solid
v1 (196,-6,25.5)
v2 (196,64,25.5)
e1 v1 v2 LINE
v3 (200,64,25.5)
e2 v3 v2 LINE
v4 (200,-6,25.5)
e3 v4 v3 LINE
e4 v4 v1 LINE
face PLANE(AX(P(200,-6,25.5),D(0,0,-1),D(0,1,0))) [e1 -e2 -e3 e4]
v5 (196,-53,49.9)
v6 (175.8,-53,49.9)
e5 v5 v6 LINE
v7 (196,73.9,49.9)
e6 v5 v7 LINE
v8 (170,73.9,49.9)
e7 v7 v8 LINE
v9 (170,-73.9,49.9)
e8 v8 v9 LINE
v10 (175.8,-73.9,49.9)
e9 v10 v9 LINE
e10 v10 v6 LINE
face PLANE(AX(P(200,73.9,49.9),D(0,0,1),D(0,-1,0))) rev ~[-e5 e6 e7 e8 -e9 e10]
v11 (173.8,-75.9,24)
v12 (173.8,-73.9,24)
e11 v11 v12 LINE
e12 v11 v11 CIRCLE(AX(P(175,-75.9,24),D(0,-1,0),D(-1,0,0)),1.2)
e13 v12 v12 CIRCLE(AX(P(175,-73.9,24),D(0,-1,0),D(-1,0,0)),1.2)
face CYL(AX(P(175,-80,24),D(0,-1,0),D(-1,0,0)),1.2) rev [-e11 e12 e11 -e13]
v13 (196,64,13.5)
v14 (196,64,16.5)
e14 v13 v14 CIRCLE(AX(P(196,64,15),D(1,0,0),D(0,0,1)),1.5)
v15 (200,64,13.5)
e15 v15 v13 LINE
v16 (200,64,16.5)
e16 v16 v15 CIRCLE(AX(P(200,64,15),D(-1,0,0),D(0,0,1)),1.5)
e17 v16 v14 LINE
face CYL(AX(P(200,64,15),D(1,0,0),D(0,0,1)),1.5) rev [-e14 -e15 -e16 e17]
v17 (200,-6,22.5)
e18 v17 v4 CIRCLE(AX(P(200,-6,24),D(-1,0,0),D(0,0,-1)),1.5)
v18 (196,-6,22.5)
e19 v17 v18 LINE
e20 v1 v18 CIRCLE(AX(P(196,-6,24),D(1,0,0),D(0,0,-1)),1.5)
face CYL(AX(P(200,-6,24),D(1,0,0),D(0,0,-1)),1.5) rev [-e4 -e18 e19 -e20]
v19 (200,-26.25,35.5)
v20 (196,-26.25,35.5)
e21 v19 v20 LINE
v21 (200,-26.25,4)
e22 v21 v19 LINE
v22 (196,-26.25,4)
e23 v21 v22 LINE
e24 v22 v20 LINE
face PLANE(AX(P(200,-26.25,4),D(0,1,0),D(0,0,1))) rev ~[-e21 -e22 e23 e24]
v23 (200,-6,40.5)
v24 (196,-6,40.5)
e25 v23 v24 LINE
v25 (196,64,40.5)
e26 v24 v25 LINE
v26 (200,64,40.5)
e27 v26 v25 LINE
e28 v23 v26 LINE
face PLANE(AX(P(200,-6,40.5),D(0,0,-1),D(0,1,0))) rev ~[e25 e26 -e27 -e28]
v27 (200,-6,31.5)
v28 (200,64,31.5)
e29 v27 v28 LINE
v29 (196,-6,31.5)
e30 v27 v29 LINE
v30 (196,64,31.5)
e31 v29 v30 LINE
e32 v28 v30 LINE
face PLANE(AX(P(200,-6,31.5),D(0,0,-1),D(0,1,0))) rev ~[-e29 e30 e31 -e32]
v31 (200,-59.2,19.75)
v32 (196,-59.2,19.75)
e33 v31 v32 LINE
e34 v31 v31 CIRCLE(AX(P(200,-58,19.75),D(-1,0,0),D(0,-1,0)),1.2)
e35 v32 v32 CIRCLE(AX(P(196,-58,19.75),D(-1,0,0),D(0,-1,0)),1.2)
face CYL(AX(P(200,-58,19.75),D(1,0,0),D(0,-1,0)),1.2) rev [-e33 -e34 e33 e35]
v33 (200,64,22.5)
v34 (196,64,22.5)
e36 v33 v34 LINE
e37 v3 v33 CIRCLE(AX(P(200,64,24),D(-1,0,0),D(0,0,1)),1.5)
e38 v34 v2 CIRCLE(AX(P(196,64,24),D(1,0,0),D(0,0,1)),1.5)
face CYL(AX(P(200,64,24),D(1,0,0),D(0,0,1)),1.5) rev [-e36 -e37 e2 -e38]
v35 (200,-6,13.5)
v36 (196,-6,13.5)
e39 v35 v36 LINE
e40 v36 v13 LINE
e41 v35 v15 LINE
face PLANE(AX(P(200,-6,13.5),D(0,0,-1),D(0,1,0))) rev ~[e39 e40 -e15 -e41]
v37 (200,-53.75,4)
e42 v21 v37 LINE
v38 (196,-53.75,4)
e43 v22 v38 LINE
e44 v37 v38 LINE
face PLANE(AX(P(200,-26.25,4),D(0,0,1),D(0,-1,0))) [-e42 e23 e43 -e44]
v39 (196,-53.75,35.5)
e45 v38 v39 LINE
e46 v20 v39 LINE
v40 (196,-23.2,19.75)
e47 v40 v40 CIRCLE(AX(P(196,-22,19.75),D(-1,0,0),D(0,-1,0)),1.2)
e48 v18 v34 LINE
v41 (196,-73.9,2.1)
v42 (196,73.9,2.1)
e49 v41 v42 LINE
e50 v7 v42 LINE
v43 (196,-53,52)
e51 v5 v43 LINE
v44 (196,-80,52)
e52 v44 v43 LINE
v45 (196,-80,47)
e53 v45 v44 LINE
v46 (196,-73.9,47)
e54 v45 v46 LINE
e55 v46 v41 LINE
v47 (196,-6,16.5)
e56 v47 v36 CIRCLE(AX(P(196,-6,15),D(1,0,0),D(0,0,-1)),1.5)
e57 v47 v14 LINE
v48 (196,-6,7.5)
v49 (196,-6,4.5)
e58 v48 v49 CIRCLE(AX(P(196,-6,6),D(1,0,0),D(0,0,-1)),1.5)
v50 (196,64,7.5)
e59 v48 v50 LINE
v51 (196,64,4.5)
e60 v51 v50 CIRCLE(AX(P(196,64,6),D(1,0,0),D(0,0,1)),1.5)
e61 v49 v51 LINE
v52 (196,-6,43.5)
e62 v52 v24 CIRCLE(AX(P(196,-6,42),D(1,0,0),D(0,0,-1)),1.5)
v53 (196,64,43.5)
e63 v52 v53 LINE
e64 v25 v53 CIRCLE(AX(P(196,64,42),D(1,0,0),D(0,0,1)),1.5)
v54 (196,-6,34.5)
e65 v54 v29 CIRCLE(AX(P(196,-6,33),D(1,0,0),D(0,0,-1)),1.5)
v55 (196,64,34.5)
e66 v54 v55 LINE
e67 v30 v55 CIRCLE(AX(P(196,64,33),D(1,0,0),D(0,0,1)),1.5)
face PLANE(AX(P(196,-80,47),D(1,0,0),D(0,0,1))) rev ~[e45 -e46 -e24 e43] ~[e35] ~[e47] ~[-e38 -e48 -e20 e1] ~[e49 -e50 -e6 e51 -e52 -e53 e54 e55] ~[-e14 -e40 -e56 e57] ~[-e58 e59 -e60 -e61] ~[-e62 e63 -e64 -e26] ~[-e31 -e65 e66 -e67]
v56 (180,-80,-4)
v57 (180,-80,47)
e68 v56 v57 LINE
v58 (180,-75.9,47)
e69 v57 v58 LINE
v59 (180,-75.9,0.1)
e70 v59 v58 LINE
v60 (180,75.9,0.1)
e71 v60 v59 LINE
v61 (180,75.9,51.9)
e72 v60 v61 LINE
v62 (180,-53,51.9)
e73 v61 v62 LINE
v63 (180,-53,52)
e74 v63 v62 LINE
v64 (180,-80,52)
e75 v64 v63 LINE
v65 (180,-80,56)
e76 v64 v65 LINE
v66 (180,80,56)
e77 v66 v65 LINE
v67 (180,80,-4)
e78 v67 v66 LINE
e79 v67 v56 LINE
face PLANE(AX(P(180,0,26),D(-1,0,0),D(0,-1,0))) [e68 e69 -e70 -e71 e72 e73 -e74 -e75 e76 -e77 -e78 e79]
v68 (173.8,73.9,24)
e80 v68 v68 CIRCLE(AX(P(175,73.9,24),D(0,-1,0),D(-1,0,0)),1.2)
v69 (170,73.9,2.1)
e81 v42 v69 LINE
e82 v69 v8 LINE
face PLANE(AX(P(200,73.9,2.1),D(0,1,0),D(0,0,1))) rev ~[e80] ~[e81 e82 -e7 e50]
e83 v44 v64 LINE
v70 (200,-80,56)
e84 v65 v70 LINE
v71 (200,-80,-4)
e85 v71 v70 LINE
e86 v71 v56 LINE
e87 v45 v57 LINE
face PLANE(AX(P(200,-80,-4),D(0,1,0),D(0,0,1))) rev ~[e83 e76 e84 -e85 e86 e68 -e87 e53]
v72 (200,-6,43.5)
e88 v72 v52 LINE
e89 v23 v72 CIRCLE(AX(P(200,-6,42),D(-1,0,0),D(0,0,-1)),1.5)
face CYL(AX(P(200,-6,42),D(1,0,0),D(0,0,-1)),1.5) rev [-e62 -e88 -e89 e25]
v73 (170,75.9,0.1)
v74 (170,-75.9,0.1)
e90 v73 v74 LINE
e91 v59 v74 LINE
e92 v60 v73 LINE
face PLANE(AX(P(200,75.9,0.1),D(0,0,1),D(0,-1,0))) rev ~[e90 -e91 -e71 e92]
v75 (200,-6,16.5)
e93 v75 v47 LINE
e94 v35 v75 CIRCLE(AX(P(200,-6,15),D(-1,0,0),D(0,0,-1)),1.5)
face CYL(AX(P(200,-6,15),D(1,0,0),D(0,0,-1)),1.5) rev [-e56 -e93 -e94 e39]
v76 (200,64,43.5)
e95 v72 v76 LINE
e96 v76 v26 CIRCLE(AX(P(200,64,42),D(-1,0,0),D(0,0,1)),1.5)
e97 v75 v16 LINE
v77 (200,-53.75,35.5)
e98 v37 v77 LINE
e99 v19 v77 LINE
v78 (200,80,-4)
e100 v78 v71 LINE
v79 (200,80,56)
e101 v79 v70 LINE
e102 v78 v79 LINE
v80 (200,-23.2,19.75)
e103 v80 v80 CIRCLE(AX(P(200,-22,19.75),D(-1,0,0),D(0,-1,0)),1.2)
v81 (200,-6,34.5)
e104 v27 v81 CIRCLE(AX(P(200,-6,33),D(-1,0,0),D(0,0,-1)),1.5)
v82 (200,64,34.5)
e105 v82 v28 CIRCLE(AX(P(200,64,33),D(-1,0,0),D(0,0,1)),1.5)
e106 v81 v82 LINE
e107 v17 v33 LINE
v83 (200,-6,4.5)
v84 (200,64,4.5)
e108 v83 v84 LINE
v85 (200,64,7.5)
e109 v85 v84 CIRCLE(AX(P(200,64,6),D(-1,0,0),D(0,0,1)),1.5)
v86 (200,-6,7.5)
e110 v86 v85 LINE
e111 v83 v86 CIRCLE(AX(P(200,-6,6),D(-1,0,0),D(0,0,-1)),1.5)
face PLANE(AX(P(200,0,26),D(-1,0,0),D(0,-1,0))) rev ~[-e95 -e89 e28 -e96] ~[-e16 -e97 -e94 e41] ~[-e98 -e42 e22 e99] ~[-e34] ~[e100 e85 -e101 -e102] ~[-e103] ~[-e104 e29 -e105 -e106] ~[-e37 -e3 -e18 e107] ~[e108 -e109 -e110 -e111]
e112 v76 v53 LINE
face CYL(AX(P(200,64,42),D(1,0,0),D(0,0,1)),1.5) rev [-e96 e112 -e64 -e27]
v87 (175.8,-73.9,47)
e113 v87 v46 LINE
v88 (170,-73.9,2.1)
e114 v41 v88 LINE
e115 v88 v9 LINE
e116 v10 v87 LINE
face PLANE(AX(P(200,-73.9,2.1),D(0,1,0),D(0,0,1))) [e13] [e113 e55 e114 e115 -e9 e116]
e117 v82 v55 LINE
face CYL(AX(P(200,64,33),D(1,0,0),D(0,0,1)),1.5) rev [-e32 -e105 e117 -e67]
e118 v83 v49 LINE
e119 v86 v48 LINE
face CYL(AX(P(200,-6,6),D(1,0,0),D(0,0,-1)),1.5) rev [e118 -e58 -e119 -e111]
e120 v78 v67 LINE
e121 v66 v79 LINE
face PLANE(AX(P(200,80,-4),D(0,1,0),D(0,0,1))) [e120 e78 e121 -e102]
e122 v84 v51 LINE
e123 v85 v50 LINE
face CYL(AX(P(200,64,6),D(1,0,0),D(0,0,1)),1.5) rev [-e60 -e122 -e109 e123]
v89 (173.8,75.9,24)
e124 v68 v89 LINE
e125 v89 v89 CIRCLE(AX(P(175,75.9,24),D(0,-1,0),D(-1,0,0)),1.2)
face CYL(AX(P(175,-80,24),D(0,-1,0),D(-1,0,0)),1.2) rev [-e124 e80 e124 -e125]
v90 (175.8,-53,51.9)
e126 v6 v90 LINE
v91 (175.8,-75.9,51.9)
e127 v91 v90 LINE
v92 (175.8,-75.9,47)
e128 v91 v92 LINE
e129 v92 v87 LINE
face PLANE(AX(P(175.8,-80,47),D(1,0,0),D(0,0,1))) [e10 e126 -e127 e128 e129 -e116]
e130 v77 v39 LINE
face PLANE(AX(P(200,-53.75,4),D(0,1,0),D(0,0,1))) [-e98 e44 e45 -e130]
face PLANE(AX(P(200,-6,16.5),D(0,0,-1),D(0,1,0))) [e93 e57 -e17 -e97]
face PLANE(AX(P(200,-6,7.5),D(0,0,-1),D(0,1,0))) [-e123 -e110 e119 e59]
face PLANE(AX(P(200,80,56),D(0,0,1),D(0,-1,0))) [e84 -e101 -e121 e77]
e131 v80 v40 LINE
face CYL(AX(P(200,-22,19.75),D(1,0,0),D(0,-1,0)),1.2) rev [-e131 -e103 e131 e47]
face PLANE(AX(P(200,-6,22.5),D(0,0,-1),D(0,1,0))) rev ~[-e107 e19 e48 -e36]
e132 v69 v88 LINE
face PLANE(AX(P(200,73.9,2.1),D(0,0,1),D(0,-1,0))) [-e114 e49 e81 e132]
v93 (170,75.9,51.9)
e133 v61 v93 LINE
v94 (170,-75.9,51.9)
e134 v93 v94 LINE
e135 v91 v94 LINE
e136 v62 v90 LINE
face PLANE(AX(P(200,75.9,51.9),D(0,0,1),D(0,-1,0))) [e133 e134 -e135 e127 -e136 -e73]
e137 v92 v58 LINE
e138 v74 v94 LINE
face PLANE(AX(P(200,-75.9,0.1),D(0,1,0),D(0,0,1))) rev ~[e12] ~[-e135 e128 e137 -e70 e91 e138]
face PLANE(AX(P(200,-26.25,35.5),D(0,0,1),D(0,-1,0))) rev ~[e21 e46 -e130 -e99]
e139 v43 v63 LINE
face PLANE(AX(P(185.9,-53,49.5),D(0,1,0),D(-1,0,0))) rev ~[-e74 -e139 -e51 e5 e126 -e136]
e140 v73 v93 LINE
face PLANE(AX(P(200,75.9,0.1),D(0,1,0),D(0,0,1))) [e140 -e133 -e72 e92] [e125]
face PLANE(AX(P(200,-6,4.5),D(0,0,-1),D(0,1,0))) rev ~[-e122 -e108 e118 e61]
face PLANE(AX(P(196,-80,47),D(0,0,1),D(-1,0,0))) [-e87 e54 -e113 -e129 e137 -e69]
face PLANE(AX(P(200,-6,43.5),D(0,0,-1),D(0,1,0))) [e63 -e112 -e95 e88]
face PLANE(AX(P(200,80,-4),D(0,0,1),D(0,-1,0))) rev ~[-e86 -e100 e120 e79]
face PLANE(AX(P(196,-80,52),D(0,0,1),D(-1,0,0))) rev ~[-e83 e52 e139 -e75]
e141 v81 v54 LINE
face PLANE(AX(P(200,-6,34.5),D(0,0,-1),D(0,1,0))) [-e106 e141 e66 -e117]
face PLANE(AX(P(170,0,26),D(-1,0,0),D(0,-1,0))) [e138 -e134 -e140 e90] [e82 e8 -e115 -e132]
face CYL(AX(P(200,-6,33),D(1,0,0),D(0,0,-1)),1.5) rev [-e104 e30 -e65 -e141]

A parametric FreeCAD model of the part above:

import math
import FreeCAD as App
import Part
import Sketcher
from FreeCAD import Vector

doc = App.newDocument("Part")
body = doc.addObject("PartDesign::Body", "Body")

# Sketch on YZ plane
sketch1 = doc.addObject("Sketcher::SketchObject", "Sketch")
body.addObject(sketch1)
sketch1.AttachmentSupport = (doc.YZ_Plane, [""])
sketch1.MapMode = "FlatFace"
sketch1.addGeometry([
    Part.LineSegment(Vector(-80, 60, 0), Vector(-80, 0, 0)),  # 0
    Part.LineSegment(Vector(-80, 0, 0), Vector(80, 0, 0)),  # 1
    Part.LineSegment(Vector(80, 0, 0), Vector(80, 60, 0)),  # 2
    Part.LineSegment(Vector(80, 60, 0), Vector(-80, 60, 0)),  # 3
    Part.Circle(Vector(22, 23.8, 0), Vector(0, 0, 1), 1.2),  # 4
    Part.LineSegment(Vector(53.8, 8, 0), Vector(26.2, 8, 0)),  # 5
    Part.LineSegment(Vector(26.2, 8, 0), Vector(26.2, 39.5, 0)),  # 6
    Part.LineSegment(Vector(26.2, 39.5, 0), Vector(53.8, 39.5, 0)),  # 7
    Part.LineSegment(Vector(53.8, 39.5, 0), Vector(53.8, 8, 0)),  # 8
    Part.Circle(Vector(58, 23.8, 0), Vector(0, 0, 1), 1.2),  # 9
], False)
sketch1.addConstraint([
    Sketcher.Constraint("Coincident", 0, 2, 1, 1),
    Sketcher.Constraint("Coincident", 1, 2, 2, 1),
    Sketcher.Constraint("Coincident", 2, 2, 3, 1),
    Sketcher.Constraint("Coincident", 3, 2, 0, 1),
    Sketcher.Constraint("Coincident", 5, 2, 6, 1),
    Sketcher.Constraint("Coincident", 6, 2, 7, 1),
    Sketcher.Constraint("Coincident", 7, 2, 8, 1),
    Sketcher.Constraint("Coincident", 8, 2, 5, 1),
    Sketcher.Constraint("Vertical", 0),
    Sketcher.Constraint("Horizontal", 1),
    Sketcher.Constraint("Vertical", 2),
    Sketcher.Constraint("Horizontal", 3),
    Sketcher.Constraint("Horizontal", 5),
    Sketcher.Constraint("Vertical", 6),
    Sketcher.Constraint("Horizontal", 7),
    Sketcher.Constraint("Vertical", 8),
    Sketcher.Constraint("Equal", 4, 9),
    Sketcher.Constraint("Symmetric", 0, 2, 1, 2, -1, 1),
    Sketcher.Constraint("Horizontal", 4, 3, 9, 3),
    Sketcher.Constraint("Diameter", 4, 2.4),
    Sketcher.Constraint("DistanceX", 1, 1, 1, 2, 160.0),
    Sketcher.Constraint("DistanceY", 0, 2, 0, 1, 60.0),
    Sketcher.Constraint("DistanceX", 5, 2, 5, 1, 27.5),
    Sketcher.Constraint("DistanceY", 6, 1, 6, 2, 31.5),
    Sketcher.Constraint("DistanceX", -1, 1, 4, 3, 22.0),
    Sketcher.Constraint("DistanceX", -1, 1, 9, 3, 58.0),
    Sketcher.Constraint("DistanceY", -1, 1, 5, 2, 8.0),
    Sketcher.Constraint("DistanceY", -1, 1, 4, 3, 23.75),
    Sketcher.Constraint("DistanceX", -1, 1, 5, 2, 26.25),
])
pad1 = doc.addObject("PartDesign::Pad", "Pad")
body.addObject(pad1)
pad1.Profile = sketch1
pad1.Length = 4

# Sketch on YZ plane
sketch2 = doc.addObject("Sketcher::SketchObject", "Sketch001")
body.addObject(sketch2)
sketch2.AttachmentSupport = (doc.YZ_Plane, [""])
sketch2.MapMode = "FlatFace"
sketch2.addGeometry([
    Part.LineSegment(Vector(-76, 56, 0), Vector(-76, 4, 0)),  # 0
    Part.LineSegment(Vector(-76, 4, 0), Vector(76, 4, 0)),  # 1
    Part.LineSegment(Vector(76, 4, 0), Vector(76, 56, 0)),  # 2
    Part.LineSegment(Vector(76, 56, 0), Vector(-76, 56, 0)),  # 3
    Part.LineSegment(Vector(74, 6, 0), Vector(-74, 6, 0)),  # 4
    Part.LineSegment(Vector(-74, 6, 0), Vector(-74, 54, 0)),  # 5
    Part.LineSegment(Vector(-74, 54, 0), Vector(74, 54, 0)),  # 6
    Part.LineSegment(Vector(74, 54, 0), Vector(74, 6, 0)),  # 7
], False)
sketch2.addConstraint([
    Sketcher.Constraint("Coincident", 0, 2, 1, 1),
    Sketcher.Constraint("Coincident", 1, 2, 2, 1),
    Sketcher.Constraint("Coincident", 2, 2, 3, 1),
    Sketcher.Constraint("Coincident", 3, 2, 0, 1),
    Sketcher.Constraint("Coincident", 4, 2, 5, 1),
    Sketcher.Constraint("Coincident", 5, 2, 6, 1),
    Sketcher.Constraint("Coincident", 6, 2, 7, 1),
    Sketcher.Constraint("Coincident", 7, 2, 4, 1),
    Sketcher.Constraint("Vertical", 0),
    Sketcher.Constraint("Horizontal", 1),
    Sketcher.Constraint("Vertical", 2),
    Sketcher.Constraint("Horizontal", 3),
    Sketcher.Constraint("Horizontal", 4),
    Sketcher.Constraint("Vertical", 5),
    Sketcher.Constraint("Horizontal", 6),
    Sketcher.Constraint("Vertical", 7),
    Sketcher.Constraint("DistanceX", 1, 1, 1, 2, 151.8),
    Sketcher.Constraint("DistanceX", 4, 2, 4, 1, 147.8),
    Sketcher.Constraint("DistanceY", 0, 2, 0, 1, 51.8),
    Sketcher.Constraint("DistanceY", 5, 1, 5, 2, 47.8),
    Sketcher.Constraint("DistanceX", 0, 2, 4, 2, 2.0),
    Sketcher.Constraint("DistanceY", 0, 2, 4, 2, 2.0),
    Sketcher.Constraint("DistanceX", 0, 2, -1, 1, 75.9),
    Sketcher.Constraint("DistanceY", -1, 1, 0, 2, 4.1),
])
pad2 = doc.addObject("PartDesign::Pad", "Pad001")
body.addObject(pad2)
pad2.Profile = sketch2
pad2.Length = 30

# Sketch on YZ plane
sketch3 = doc.addObject("Sketcher::SketchObject", "Sketch002")
body.addObject(sketch3)
sketch3.AttachmentSupport = (doc.YZ_Plane, [""])
sketch3.MapMode = "FlatFace"
sketch3.addGeometry([
    Part.LineSegment(Vector(-80, 60, 0), Vector(-80, 0, 0)),  # 0
    Part.LineSegment(Vector(-80, 0, 0), Vector(80, 0, 0)),  # 1
    Part.LineSegment(Vector(80, 0, 0), Vector(80, 60, 0)),  # 2
    Part.LineSegment(Vector(80, 60, 0), Vector(-80, 60, 0)),  # 3
    Part.LineSegment(Vector(76, 4, 0), Vector(-76, 4, 0)),  # 4
    Part.LineSegment(Vector(-76, 4, 0), Vector(-76, 56, 0)),  # 5
    Part.LineSegment(Vector(-76, 56, 0), Vector(76, 56, 0)),  # 6
    Part.LineSegment(Vector(76, 56, 0), Vector(76, 4, 0)),  # 7
], False)
sketch3.addConstraint([
    Sketcher.Constraint("Coincident", 0, 2, 1, 1),
    Sketcher.Constraint("Coincident", 1, 2, 2, 1),
    Sketcher.Constraint("Coincident", 2, 2, 3, 1),
    Sketcher.Constraint("Coincident", 3, 2, 0, 1),
    Sketcher.Constraint("Coincident", 4, 2, 5, 1),
    Sketcher.Constraint("Coincident", 5, 2, 6, 1),
    Sketcher.Constraint("Coincident", 6, 2, 7, 1),
    Sketcher.Constraint("Coincident", 7, 2, 4, 1),
    Sketcher.Constraint("Vertical", 0),
    Sketcher.Constraint("Horizontal", 1),
    Sketcher.Constraint("Vertical", 2),
    Sketcher.Constraint("Horizontal", 3),
    Sketcher.Constraint("Horizontal", 4),
    Sketcher.Constraint("Vertical", 5),
    Sketcher.Constraint("Horizontal", 6),
    Sketcher.Constraint("Vertical", 7),
    Sketcher.Constraint("Symmetric", 0, 2, 1, 2, -1, 1),
    Sketcher.Constraint("DistanceX", 1, 1, 1, 2, 160.0),
    Sketcher.Constraint("DistanceY", 0, 2, 0, 1, 60.0),
    Sketcher.Constraint("DistanceX", 4, 2, 4, 1, 151.8),
    Sketcher.Constraint("DistanceY", 5, 1, 5, 2, 51.8),
    Sketcher.Constraint("DistanceX", 4, 2, -1, 1, 75.9),
    Sketcher.Constraint("DistanceY", -1, 1, 4, 2, 4.1),
])
pad3 = doc.addObject("PartDesign::Pad", "Pad002")
body.addObject(pad3)
pad3.Profile = sketch3
pad3.Length = 20

# Sketch on XZ plane
sketch4 = doc.addObject("Sketcher::SketchObject", "Sketch003")
body.addObject(sketch4)
sketch4.AttachmentSupport = (doc.XZ_Plane, [""])
sketch4.MapMode = "FlatFace"
sketch4.AttachmentOffset = App.Placement(Vector(0, 0, -80), App.Rotation())
sketch4.addGeometry([
    Part.LineSegment(Vector(4, 56, 0), Vector(4, 51, 0)),
    Part.LineSegment(Vector(4, 51, 0), Vector(24, 51, 0)),
    Part.LineSegment(Vector(24, 51, 0), Vector(24, 56, 0)),
    Part.LineSegment(Vector(24, 56, 0), Vector(4, 56, 0)),
], False)
sketch4.addConstraint([
    Sketcher.Constraint("Coincident", 0, 2, 1, 1),
    Sketcher.Constraint("Coincident", 1, 2, 2, 1),
    Sketcher.Constraint("Coincident", 2, 2, 3, 1),
    Sketcher.Constraint("Coincident", 3, 2, 0, 1),
    Sketcher.Constraint("Vertical", 0),
    Sketcher.Constraint("Horizontal", 1),
    Sketcher.Constraint("Vertical", 2),
    Sketcher.Constraint("Horizontal", 3),
    Sketcher.Constraint("DistanceY", 0, 2, 0, 1, 5.0),
    Sketcher.Constraint("DistanceX", 1, 1, 1, 2, 20.2),
    Sketcher.Constraint("DistanceX", -1, 1, 0, 2, 4.0),
    Sketcher.Constraint("DistanceY", -1, 1, 0, 2, 51.0),
])
pocket1 = doc.addObject("PartDesign::Pocket", "Pocket")
body.addObject(pocket1)
pocket1.Profile = sketch4
pocket1.Length = 27
pocket1.Reversed = True

# Sketch on XZ plane
sketch5 = doc.addObject("Sketcher::SketchObject", "Sketch004")
body.addObject(sketch5)
sketch5.AttachmentSupport = (doc.XZ_Plane, [""])
sketch5.MapMode = "FlatFace"
sketch5.AttachmentOffset = App.Placement(Vector(0, 0, -80), App.Rotation())
sketch5.addGeometry(Part.Circle(Vector(25, 28, 0), Vector(0, 0, 1), 1.2), False)
sketch5.addConstraint([
    Sketcher.Constraint("Diameter", 0, 2.4),
    Sketcher.Constraint("DistanceX", -1, 1, 0, 3, 25.0),
    Sketcher.Constraint("DistanceY", -1, 1, 0, 3, 28.0),
])
pocket2 = doc.addObject("PartDesign::Pocket", "Pocket001")
body.addObject(pocket2)
pocket2.Profile = sketch5
pocket2.Type = "ThroughAll"
pocket2.Reversed = True

# Sketch on YZ plane
sketch6 = doc.addObject("Sketcher::SketchObject", "Sketch005")
body.addObject(sketch6)
sketch6.AttachmentSupport = (doc.YZ_Plane, [""])
sketch6.MapMode = "FlatFace"
sketch6.addGeometry([
    Part.LineSegment(Vector(6, 11.5, 0), Vector(-64, 11.5, 0)),
    Part.ArcOfCircle(Part.Circle(Vector(-64, 10, 0), Vector(0, 0, 1), 1.5), math.radians(90), math.radians(270)),
    Part.LineSegment(Vector(-64, 8.5, 0), Vector(6, 8.5, 0)),
    Part.ArcOfCircle(Part.Circle(Vector(6, 10, 0), Vector(0, 0, 1), 1.5), math.radians(-90), math.radians(90)),
], False)
sketch6.addConstraint([
    Sketcher.Constraint("Tangent", 0, 2, 1, 1),
    Sketcher.Constraint("Tangent", 1, 2, 2, 1),
    Sketcher.Constraint("Tangent", 2, 2, 3, 1),
    Sketcher.Constraint("Tangent", 3, 2, 0, 1),
    Sketcher.Constraint("Horizontal", 0),
    Sketcher.Constraint("Horizontal", 2),
    Sketcher.Constraint("Radius", 1, 1.5),
    Sketcher.Constraint("DistanceX", 0, 2, 0, 1, 70.0),
    Sketcher.Constraint("DistanceX", 1, 3, -1, 1, 64.0),
    Sketcher.Constraint("DistanceY", -1, 1, 1, 3, 10.0),
])
pocket3 = doc.addObject("PartDesign::Pocket", "Pocket002")
body.addObject(pocket3)
pocket3.Profile = sketch6
pocket3.Type = "ThroughAll"
pocket3.Reversed = True
doc.recompute()

linearpattern = doc.addObject("PartDesign::LinearPattern", "LinearPattern")
body.addObject(linearpattern)
linearpattern.Originals = [pocket3]
linearpattern.Direction = (doc.Z_Axis, [""])
linearpattern.Mode = "offset"
linearpattern.Offset = 9
linearpattern.Occurrences = 5
body.Tip = linearpattern
body2 = doc.addObject("PartDesign::Body", "Body001")
doc.recompute()

body.Placement = App.Placement(Vector(200, 0, -4), App.Rotation(Vector(0, 0, 1), 180))
boolean = doc.addObject("PartDesign::Boolean", "Boolean")
body2.addObject(boolean)
boolean.Type = "Fuse"
boolean.addObjects([body])

doc.recompute()
